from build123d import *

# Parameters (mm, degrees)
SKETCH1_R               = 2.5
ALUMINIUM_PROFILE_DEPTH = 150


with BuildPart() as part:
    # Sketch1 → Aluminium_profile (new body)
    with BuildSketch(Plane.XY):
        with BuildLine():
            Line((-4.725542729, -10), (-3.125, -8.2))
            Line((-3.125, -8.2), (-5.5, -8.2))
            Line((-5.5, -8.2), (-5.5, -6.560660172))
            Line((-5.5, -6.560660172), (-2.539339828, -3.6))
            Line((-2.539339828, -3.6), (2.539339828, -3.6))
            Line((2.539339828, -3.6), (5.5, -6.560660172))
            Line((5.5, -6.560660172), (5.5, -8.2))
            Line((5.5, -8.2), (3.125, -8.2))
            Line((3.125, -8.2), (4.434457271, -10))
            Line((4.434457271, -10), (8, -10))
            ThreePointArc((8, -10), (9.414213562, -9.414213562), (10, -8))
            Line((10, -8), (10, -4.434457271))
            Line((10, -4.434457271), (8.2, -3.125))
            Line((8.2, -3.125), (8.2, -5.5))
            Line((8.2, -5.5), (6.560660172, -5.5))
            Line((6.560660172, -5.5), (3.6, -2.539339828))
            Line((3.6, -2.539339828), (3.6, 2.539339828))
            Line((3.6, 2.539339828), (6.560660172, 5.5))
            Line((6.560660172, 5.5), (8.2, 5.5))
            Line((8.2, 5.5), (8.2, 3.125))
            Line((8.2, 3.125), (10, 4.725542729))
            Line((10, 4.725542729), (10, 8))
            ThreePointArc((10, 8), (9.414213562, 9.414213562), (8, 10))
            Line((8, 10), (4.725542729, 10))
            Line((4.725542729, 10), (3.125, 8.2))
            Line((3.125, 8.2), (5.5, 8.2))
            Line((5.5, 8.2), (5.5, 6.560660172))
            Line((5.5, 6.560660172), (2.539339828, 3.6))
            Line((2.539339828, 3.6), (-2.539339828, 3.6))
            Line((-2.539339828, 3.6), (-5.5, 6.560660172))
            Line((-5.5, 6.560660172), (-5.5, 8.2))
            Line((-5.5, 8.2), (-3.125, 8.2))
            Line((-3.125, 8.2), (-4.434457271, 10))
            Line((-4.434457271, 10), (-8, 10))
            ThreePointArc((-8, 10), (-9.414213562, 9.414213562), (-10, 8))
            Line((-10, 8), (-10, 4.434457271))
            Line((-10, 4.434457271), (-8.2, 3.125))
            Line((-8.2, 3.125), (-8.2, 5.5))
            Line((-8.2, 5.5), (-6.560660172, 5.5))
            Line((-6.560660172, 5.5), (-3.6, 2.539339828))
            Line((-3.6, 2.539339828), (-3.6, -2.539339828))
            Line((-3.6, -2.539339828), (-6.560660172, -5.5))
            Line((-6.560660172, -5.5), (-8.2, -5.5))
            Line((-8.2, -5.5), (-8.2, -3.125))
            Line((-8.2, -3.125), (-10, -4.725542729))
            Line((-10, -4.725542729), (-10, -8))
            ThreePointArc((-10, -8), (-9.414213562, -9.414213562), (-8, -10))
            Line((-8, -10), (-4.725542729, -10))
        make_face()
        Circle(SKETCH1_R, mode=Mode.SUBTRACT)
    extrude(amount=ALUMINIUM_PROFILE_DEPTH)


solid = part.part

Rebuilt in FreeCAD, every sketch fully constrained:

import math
import FreeCAD as App
import Part
import Sketcher

V = App.Vector
Q = App.Units.Quantity

doc = App.newDocument("Part")
body = doc.addObject("PartDesign::Body", "Body")

# Sketch on XY plane
sketch1 = body.newObject("Sketcher::SketchObject", "Sketch")
sketch1.AttachmentSupport = (doc.getObject("XY_Plane"), [""])
sketch1.MapMode = "FlatFace"
sketch1.addGeometry([
    Part.LineSegment(V(-4.7, -10, 0), V(-3.1, -8.2, 0)),  # 0
    Part.LineSegment(V(-3.1, -8.2, 0), V(-5.5, -8.2, 0)),  # 1
    Part.LineSegment(V(-5.5, -8.2, 0), V(-5.5, -6.6, 0)),  # 2
    Part.LineSegment(V(-5.5, -6.6, 0), V(-2.5, -3.6, 0)),  # 3
    Part.LineSegment(V(-2.5, -3.6, 0), V(2.5, -3.6, 0)),  # 4
    Part.LineSegment(V(2.5, -3.6, 0), V(5.5, -6.6, 0)),  # 5
    Part.LineSegment(V(5.5, -6.6, 0), V(5.5, -8.2, 0)),  # 6
    Part.LineSegment(V(5.5, -8.2, 0), V(3.1, -8.2, 0)),  # 7
    Part.LineSegment(V(3.1, -8.2, 0), V(4.4, -10, 0)),  # 8
    Part.LineSegment(V(4.4, -10, 0), V(8, -10, 0)),  # 9
    Part.ArcOfCircle(Part.Circle(V(8, -8, 0), V(0, 0, 1), 2), math.radians(-90), math.radians(0)),  # 10
    Part.LineSegment(V(10, -8, 0), V(10, -4.4, 0)),  # 11
    Part.LineSegment(V(10, -4.4, 0), V(8.2, -3.1, 0)),  # 12
    Part.LineSegment(V(8.2, -3.1, 0), V(8.2, -5.5, 0)),  # 13
    Part.LineSegment(V(8.2, -5.5, 0), V(6.6, -5.5, 0)),  # 14
    Part.LineSegment(V(6.6, -5.5, 0), V(3.6, -2.5, 0)),  # 15
    Part.LineSegment(V(3.6, -2.5, 0), V(3.6, 2.5, 0)),  # 16
    Part.LineSegment(V(3.6, 2.5, 0), V(6.6, 5.5, 0)),  # 17
    Part.LineSegment(V(6.6, 5.5, 0), V(8.2, 5.5, 0)),  # 18
    Part.LineSegment(V(8.2, 5.5, 0), V(8.2, 3.1, 0)),  # 19
    Part.LineSegment(V(8.2, 3.1, 0), V(10, 4.7, 0)),  # 20
    Part.LineSegment(V(10, 4.7, 0), V(10, 8, 0)),  # 21
    Part.ArcOfCircle(Part.Circle(V(8, 8, 0), V(0, 0, 1), 2), math.radians(0), math.radians(90)),  # 22
    Part.LineSegment(V(8, 10, 0), V(4.7, 10, 0)),  # 23
    Part.LineSegment(V(4.7, 10, 0), V(3.1, 8.2, 0)),  # 24
    Part.LineSegment(V(3.1, 8.2, 0), V(5.5, 8.2, 0)),  # 25
    Part.LineSegment(V(5.5, 8.2, 0), V(5.5, 6.6, 0)),  # 26
    Part.LineSegment(V(5.5, 6.6, 0), V(2.5, 3.6, 0)),  # 27
    Part.LineSegment(V(2.5, 3.6, 0), V(-2.5, 3.6, 0)),  # 28
    Part.LineSegment(V(-2.5, 3.6, 0), V(-5.5, 6.6, 0)),  # 29
    Part.LineSegment(V(-5.5, 6.6, 0), V(-5.5, 8.2, 0)),  # 30
    Part.LineSegment(V(-5.5, 8.2, 0), V(-3.1, 8.2, 0)),  # 31
    Part.LineSegment(V(-3.1, 8.2, 0), V(-4.4, 10, 0)),  # 32
    Part.LineSegment(V(-4.4, 10, 0), V(-8, 10, 0)),  # 33
    Part.ArcOfCircle(Part.Circle(V(-8, 8, 0), V(0, 0, 1), 2), math.radians(90), math.radians(180)),  # 34
    Part.LineSegment(V(-10, 8, 0), V(-10, 4.4, 0)),  # 35
    Part.LineSegment(V(-10, 4.4, 0), V(-8.2, 3.1, 0)),  # 36
    Part.LineSegment(V(-8.2, 3.1, 0), V(-8.2, 5.5, 0)),  # 37
    Part.LineSegment(V(-8.2, 5.5, 0), V(-6.6, 5.5, 0)),  # 38
    Part.LineSegment(V(-6.6, 5.5, 0), V(-3.6, 2.5, 0)),  # 39
    Part.LineSegment(V(-3.6, 2.5, 0), V(-3.6, -2.5, 0)),  # 40
    Part.LineSegment(V(-3.6, -2.5, 0), V(-6.6, -5.5, 0)),  # 41
    Part.LineSegment(V(-6.6, -5.5, 0), V(-8.2, -5.5, 0)),  # 42
    Part.LineSegment(V(-8.2, -5.5, 0), V(-8.2, -3.1, 0)),  # 43
    Part.LineSegment(V(-8.2, -3.1, 0), V(-10, -4.7, 0)),  # 44
    Part.LineSegment(V(-10, -4.7, 0), V(-10, -8, 0)),  # 45
    Part.ArcOfCircle(Part.Circle(V(-8, -8, 0), V(0, 0, 1), 2), math.radians(-180), math.radians(-90)),  # 46
    Part.LineSegment(V(-8, -10, 0), V(-4.7, -10, 0)),  # 47
    Part.Circle(V(0, 0, 0), V(0, 0, 1), 2.5),  # 48
], False)
sketch1.addConstraint([
    Sketcher.Constraint("Coincident", 0, 2, 1, 1),
    Sketcher.Constraint("Coincident", 1, 2, 2, 1),
    Sketcher.Constraint("Coincident", 2, 2, 3, 1),
    Sketcher.Constraint("Coincident", 3, 2, 4, 1),
    Sketcher.Constraint("Coincident", 4, 2, 5, 1),
    Sketcher.Constraint("Coincident", 5, 2, 6, 1),
    Sketcher.Constraint("Coincident", 6, 2, 7, 1),
    Sketcher.Constraint("Coincident", 7, 2, 8, 1),
    Sketcher.Constraint("Coincident", 8, 2, 9, 1),
    Sketcher.Constraint("Tangent", 9, 2, 10, 1),
    Sketcher.Constraint("Tangent", 10, 2, 11, 1),
    Sketcher.Constraint("Coincident", 11, 2, 12, 1),
    Sketcher.Constraint("Coincident", 12, 2, 13, 1),
    Sketcher.Constraint("Coincident", 13, 2, 14, 1),
    Sketcher.Constraint("Coincident", 14, 2, 15, 1),
    Sketcher.Constraint("Coincident", 15, 2, 16, 1),
    Sketcher.Constraint("Coincident", 16, 2, 17, 1),
    Sketcher.Constraint("Coincident", 17, 2, 18, 1),
    Sketcher.Constraint("Coincident", 18, 2, 19, 1),
    Sketcher.Constraint("Coincident", 19, 2, 20, 1),
    Sketcher.Constraint("Coincident", 20, 2, 21, 1),
    Sketcher.Constraint("Tangent", 21, 2, 22, 1),
    Sketcher.Constraint("Tangent", 22, 2, 23, 1),
    Sketcher.Constraint("Coincident", 23, 2, 24, 1),
    Sketcher.Constraint("Coincident", 24, 2, 25, 1),
    Sketcher.Constraint("Coincident", 25, 2, 26, 1),
    Sketcher.Constraint("Coincident", 26, 2, 27, 1),
    Sketcher.Constraint("Coincident", 27, 2, 28, 1),
    Sketcher.Constraint("Coincident", 28, 2, 29, 1),
    Sketcher.Constraint("Coincident", 29, 2, 30, 1),
    Sketcher.Constraint("Coincident", 30, 2, 31, 1),
    Sketcher.Constraint("Coincident", 31, 2, 32, 1),
    Sketcher.Constraint("Coincident", 32, 2, 33, 1),
    Sketcher.Constraint("Tangent", 33, 2, 34, 1),
    Sketcher.Constraint("Tangent", 34, 2, 35, 1),
    Sketcher.Constraint("Coincident", 35, 2, 36, 1),
    Sketcher.Constraint("Coincident", 36, 2, 37, 1),
    Sketcher.Constraint("Coincident", 37, 2, 38, 1),
    Sketcher.Constraint("Coincident", 38, 2, 39, 1),
    Sketcher.Constraint("Coincident", 39, 2, 40, 1),
    Sketcher.Constraint("Coincident", 40, 2, 41, 1),
    Sketcher.Constraint("Coincident", 41, 2, 42, 1),
    Sketcher.Constraint("Coincident", 42, 2, 43, 1),
    Sketcher.Constraint("Coincident", 43, 2, 44, 1),
    Sketcher.Constraint("Coincident", 44, 2, 45, 1),
    Sketcher.Constraint("Tangent", 45, 2, 46, 1),
    Sketcher.Constraint("Tangent", 46, 2, 47, 1),
    Sketcher.Constraint("Coincident", 47, 2, 0, 1),
    Sketcher.Constraint("Horizontal", 1),
    Sketcher.Constraint("Vertical", 2),
    Sketcher.Constraint("Horizontal", 4),
    Sketcher.Constraint("Vertical", 6),
    Sketcher.Constraint("Horizontal", 7),
    Sketcher.Constraint("Horizontal", 9),
    Sketcher.Constraint("Vertical", 11),
    Sketcher.Constraint("Vertical", 13),
    Sketcher.Constraint("Horizontal", 14),
    Sketcher.Constraint("Vertical", 16),
    Sketcher.Constraint("Horizontal", 18),
    Sketcher.Constraint("Vertical", 19),
    Sketcher.Constraint("Vertical", 21),
    Sketcher.Constraint("Horizontal", 23),
    Sketcher.Constraint("Horizontal", 25),
    Sketcher.Constraint("Vertical", 26),
    Sketcher.Constraint("Horizontal", 28),
    Sketcher.Constraint("Vertical", 30),
    Sketcher.Constraint("Horizontal", 31),
    Sketcher.Constraint("Horizontal", 33),
    Sketcher.Constraint("Vertical", 35),
    Sketcher.Constraint("Vertical", 37),
    Sketcher.Constraint("Horizontal", 38),
    Sketcher.Constraint("Vertical", 40),
    Sketcher.Constraint("Horizontal", 42),
    Sketcher.Constraint("Vertical", 43),
    Sketcher.Constraint("Vertical", 45),
    Sketcher.Constraint("Horizontal", 47),
    Sketcher.Constraint("Coincident", 48, 3, -1, 1),
    Sketcher.Constraint("Equal", 10, 22),
    Sketcher.Constraint("Equal", 22, 34),
    Sketcher.Constraint("Equal", 34, 46),
    Sketcher.Constraint("Symmetric", 10, 3, 34, 3, -1, 1),
    Sketcher.Constraint("Symmetric", 22, 3, 46, 3, -1, 1),
    Sketcher.Constraint("Symmetric", 0, 2, 24, 2, -1, 1),
    Sketcher.Constraint("Symmetric", 2, 2, 26, 2, -1, 1),
    Sketcher.Constraint("Symmetric", 3, 2, 27, 2, -1, 1),
    Sketcher.Constraint("Symmetric", 5, 2, 29, 2, -1, 1),
    Sketcher.Constraint("Symmetric", 7, 2, 31, 2, -1, 1),
    Sketcher.Constraint("Symmetric", 12, 2, 36, 2, -1, 1),
    Sketcher.Constraint("Symmetric", 14, 2, 38, 2, -1, 1),
    Sketcher.Constraint("Symmetric", 15, 2, 39, 2, -1, 1),
    Sketcher.Constraint("Symmetric", 17, 2, 41, 2, -1, 1),
    Sketcher.Constraint("Symmetric", 19, 2, 43, 2, -1, 1),
    Sketcher.Constraint("Symmetric", 22, 3, 34, 3, -2),
    Sketcher.Constraint("Symmetric", 2, 2, 5, 2, -2),
    Sketcher.Constraint("Symmetric", 0, 2, 7, 2, -2),
    Sketcher.Constraint("Symmetric", 19, 2, 36, 2, -2),
    Sketcher.Constraint("Symmetric", 17, 2, 38, 2, -2),
    Sketcher.Constraint("Perpendicular", 3, 5),
    Sketcher.Constraint("Parallel", 5, 15),
    Sketcher.Constraint("Perpendicular", 15, 17),
    Sketcher.Constraint("Parallel", 0, 24),
    Sketcher.Constraint("Perpendicular", 27, 29),
    Sketcher.Constraint("Parallel", 8, 32),
    Sketcher.Constraint("Parallel", 12, 36),
    Sketcher.Constraint("Perpendicular", 39, 41),
    Sketcher.Constraint("Parallel", 20, 44),
    Sketcher.Constraint("Horizontal", 16, 2, 39, 2),
    Sketcher.Constraint("Equal", 42, 2),
    Sketcher.Constraint("Equal", 33, 11),
    Sketcher.Constraint("Equal", 31, 13),
    Sketcher.Constraint("Equal", 28, 16),
    Sketcher.Constraint("Equal", 47, 21),
    Sketcher.Constraint("Equal", 8, 12),
    Sketcher.Constraint("Equal", 5, 15),
    Sketcher.Constraint("Equal", 0, 20),
    Sketcher.Constraint("Diameter", 48, Q("5 mm")),
    Sketcher.Constraint("Radius", 10, Q("2 mm")),
    Sketcher.Constraint("DistanceX", -1, 1, 10, 3, Q("8 mm")),
    Sketcher.Constraint("DistanceY", 0, 2, -1, 1, Q("8.2 mm")),
    Sketcher.Constraint("DistanceX", 1, 2, -1, 1, Q("5.5 mm")),
    Sketcher.Constraint("DistanceY", 3, 2, -1, 1, Q("3.6 mm")),
    Sketcher.Constraint("DistanceX", 1, 2, 1, 1, Q("2.375 mm")),
    Sketcher.Constraint("DistanceX", 4, 1, 4, 2, Q("5.07868 mm")),
    Sketcher.Constraint("Distance", 0, Q("2.40868 mm")),
    Sketcher.Constraint("Distance", 8, Q("2.225911 mm")),
])
pad1 = body.newObject("PartDesign::Pad", "Pad")
pad1.Profile = sketch1
pad1.Length = 150

doc.recompute()
